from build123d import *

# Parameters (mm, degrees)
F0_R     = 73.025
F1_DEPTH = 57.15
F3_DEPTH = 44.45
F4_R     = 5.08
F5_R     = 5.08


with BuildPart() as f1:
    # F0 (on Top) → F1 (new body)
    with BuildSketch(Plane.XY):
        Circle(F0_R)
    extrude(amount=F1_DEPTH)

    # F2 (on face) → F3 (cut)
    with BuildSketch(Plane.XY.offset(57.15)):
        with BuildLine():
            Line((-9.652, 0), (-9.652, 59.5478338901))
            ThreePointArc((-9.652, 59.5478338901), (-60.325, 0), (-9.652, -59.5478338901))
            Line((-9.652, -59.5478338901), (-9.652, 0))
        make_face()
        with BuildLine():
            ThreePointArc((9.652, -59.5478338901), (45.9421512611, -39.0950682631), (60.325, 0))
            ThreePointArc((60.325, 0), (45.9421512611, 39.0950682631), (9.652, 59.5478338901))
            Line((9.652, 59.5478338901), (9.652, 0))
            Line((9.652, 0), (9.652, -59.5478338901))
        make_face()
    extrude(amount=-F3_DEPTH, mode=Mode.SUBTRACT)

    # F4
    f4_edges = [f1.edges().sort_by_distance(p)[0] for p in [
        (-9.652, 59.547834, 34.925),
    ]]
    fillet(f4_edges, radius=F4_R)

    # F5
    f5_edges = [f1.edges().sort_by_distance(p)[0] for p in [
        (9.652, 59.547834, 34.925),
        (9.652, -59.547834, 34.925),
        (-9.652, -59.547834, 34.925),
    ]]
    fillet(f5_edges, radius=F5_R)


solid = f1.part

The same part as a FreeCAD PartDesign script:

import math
import FreeCAD as App
import Part
import Sketcher

V = App.Vector
Q = App.Units.Quantity


def edges_at(feature, points):
    """Names of the edges that pass closest to the given points."""
    edges = feature.Shape.Edges
    near = lambda p: min(range(len(edges)), key=lambda i: edges[i].distToShape(Part.Vertex(*p))[0])
    return sorted({f"Edge{near(p) + 1}" for p in points})

doc = App.newDocument("Part")
params = doc.addObject("Spreadsheet::Sheet", "Params")
for row, (alias, value) in enumerate([
    ("sketch1_diameter", "5.75 in"),
    ("pad1_length", "2.25 in"),
    ("sketch2_radius", "2.375 in"),
    ("pocket1_length", "1.75 in"),
    ("fillet_radius", "0.2 in"),
    ("fillet2_radius", "0.2 in"),
], start=1):
    params.set(f"A{row}", alias)
    params.set(f"B{row}", "=" + value)
    params.setAlias(f"B{row}", alias)

body = doc.addObject("PartDesign::Body", "Body")

# Sketch on XY plane
sketch1 = body.newObject("Sketcher::SketchObject", "Sketch")
sketch1.AttachmentSupport = (doc.getObject("XY_Plane"), [""])
sketch1.MapMode = "FlatFace"
sketch1.addGeometry(Part.Circle(V(0, 0, 0), V(0, 0, 1), 73.025), False)
sketch1.addConstraint(Sketcher.Constraint("Coincident", 0, 3, -1, 1))
sketch1.addConstraint(Sketcher.Constraint("Diameter", 0, Q("5.75 in")))
sketch1.setExpression("Constraints[1]", "Params.sketch1_diameter")
pad1 = body.newObject("PartDesign::Pad", "Pad")
pad1.Profile = sketch1
pad1.setExpression("Length", "Params.pad1_length")

# Sketch on XY plane
sketch2 = body.newObject("Sketcher::SketchObject", "Sketch001")
sketch2.AttachmentSupport = (doc.getObject("XY_Plane"), [""])
sketch2.MapMode = "FlatFace"
sketch2.AttachmentOffset = App.Placement(V(0, 0, 2.25 * 25.4), App.Rotation())
sketch2.addGeometry(Part.ArcOfCircle(Part.Circle(V(0, 0, 0), V(0, 0, 1), 60.325), math.radians(99.206896), math.radians(260.793104)), False)
sketch2.addGeometry(Part.LineSegment(V(-9.652, -59.547834, 0), V(-9.652, 59.547834, 0)), False)
sketch2.addGeometry(Part.ArcOfCircle(Part.Circle(V(0, 0, 0), V(0, 0, 1), 60.325), math.radians(-80.793104), math.radians(0)), False)
sketch2.addGeometry(Part.ArcOfCircle(Part.Circle(V(0, 0, 0), V(0, 0, 1), 60.325), math.radians(0), math.radians(80.793104)), False)
sketch2.addGeometry(Part.LineSegment(V(9.652, 59.547834, 0), V(9.652, -59.547834, 0)), False)
sketch2.addConstraint(Sketcher.Constraint("Coincident", 0, 1, 1, 2))
sketch2.addConstraint(Sketcher.Constraint("Coincident", 1, 1, 0, 2))
sketch2.addConstraint(Sketcher.Constraint("Tangent", 2, 2, 3, 1))
sketch2.addConstraint(Sketcher.Constraint("Coincident", 3, 2, 4, 1))
sketch2.addConstraint(Sketcher.Constraint("Coincident", 4, 2, 2, 1))
sketch2.addConstraint(Sketcher.Constraint("Vertical", 1))
sketch2.addConstraint(Sketcher.Constraint("Vertical", 4))
sketch2.addConstraint(Sketcher.Constraint("Coincident", 0, 3, -1, 1))
sketch2.addConstraint(Sketcher.Constraint("Coincident", 2, 3, -1, 1))
sketch2.addConstraint(Sketcher.Constraint("Equal", 0, 2))
sketch2.addConstraint(Sketcher.Constraint("Equal", 2, 3))
sketch2.addConstraint(Sketcher.Constraint("PointOnObject", 2, 2, -1))
sketch2.addConstraint(Sketcher.Constraint("Horizontal", 0, 1, 3, 2))
sketch2.addConstraint(Sketcher.Constraint("Radius", 0, Q("2.375 in")))
sketch2.addConstraint(Sketcher.Constraint("DistanceX", 0, 1, -1, 1, Q("0.38 in")))
sketch2.setExpression("Constraints[13]", "Params.sketch2_radius")
pocket1 = body.newObject("PartDesign::Pocket", "Pocket")
pocket1.Profile = sketch2
pocket1.setExpression("Length", "Params.pocket1_length")
doc.recompute()

fillet = body.newObject("PartDesign::Fillet", "Fillet")
fillet.Base = (pocket1, edges_at(pocket1, [(-9.652, 59.548, 34.925)]))
fillet.setExpression("Radius", "Params.fillet_radius")
doc.recompute()

fillet2 = body.newObject("PartDesign::Fillet", "Fillet001")
fillet2.Base = (fillet, edges_at(fillet, [(9.652, 59.548, 34.925), (9.652, -59.548, 34.925), (-9.652, -59.548, 34.925)]))
fillet2.setExpression("Radius", "Params.fillet2_radius")

doc.recompute()
